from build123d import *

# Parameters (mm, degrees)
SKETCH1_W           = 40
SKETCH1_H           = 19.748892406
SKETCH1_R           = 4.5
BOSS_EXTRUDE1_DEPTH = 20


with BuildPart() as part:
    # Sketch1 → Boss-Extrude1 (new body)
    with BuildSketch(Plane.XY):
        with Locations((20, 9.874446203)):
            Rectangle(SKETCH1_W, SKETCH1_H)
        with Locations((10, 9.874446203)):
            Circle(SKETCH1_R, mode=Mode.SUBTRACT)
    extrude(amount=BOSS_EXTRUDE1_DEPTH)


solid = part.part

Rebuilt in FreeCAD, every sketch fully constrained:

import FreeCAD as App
import Part
import Sketcher


def add_polygon(sketch, points):
    """Adds a closed chain of lines whose ends are joined by coincident constraints."""
    first, n = sketch.GeometryCount, len(points)
    for a, b in zip(points, points[1:] + points[:1]):
        sketch.addGeometry(Part.LineSegment(App.Vector(*a, 0), App.Vector(*b, 0)), False)
    for i in range(n):
        sketch.addConstraint(Sketcher.Constraint("Coincident", first + i, 2, first + (i + 1) % n, 1))

doc = App.newDocument("Part")
body = doc.addObject("PartDesign::Body", "Body")

# Sketch on XY plane
sketch1 = body.newObject("Sketcher::SketchObject", "Sketch")
sketch1.AttachmentSupport = (doc.getObject("XY_Plane"), [""])
sketch1.MapMode = "FlatFace"
add_polygon(sketch1, [(0, 19.7), (0, 0), (40, 0), (40, 19.7)])  # lines 0-3
sketch1.addGeometry(Part.Circle(App.Vector(10, 9.9, 0), App.Vector(0, 0, 1), 4.5), False)  # 4
sketch1.addConstraint(Sketcher.Constraint("Vertical", 0))
sketch1.addConstraint(Sketcher.Constraint("Horizontal", 1))
sketch1.addConstraint(Sketcher.Constraint("Vertical", 2))
sketch1.addConstraint(Sketcher.Constraint("Horizontal", 3))
sketch1.addConstraint(Sketcher.Constraint("Coincident", 0, 2, -1, 1))
sketch1.addConstraint(Sketcher.Constraint("Diameter", 4, 9.0))
sketch1.addConstraint(Sketcher.Constraint("DistanceX", 1, 1, 1, 2, 40.0))
sketch1.addConstraint(Sketcher.Constraint("DistanceX", -1, 1, 4, 3, 10.0))
sketch1.addConstraint(Sketcher.Constraint("DistanceY", 0, 2, 0, 1, 19.748892))
sketch1.addConstraint(Sketcher.Constraint("DistanceY", -1, 1, 4, 3, 9.874446))
pad1 = body.newObject("PartDesign::Pad", "Pad")
pad1.Profile = sketch1
pad1.Length = 20

doc.recompute()
